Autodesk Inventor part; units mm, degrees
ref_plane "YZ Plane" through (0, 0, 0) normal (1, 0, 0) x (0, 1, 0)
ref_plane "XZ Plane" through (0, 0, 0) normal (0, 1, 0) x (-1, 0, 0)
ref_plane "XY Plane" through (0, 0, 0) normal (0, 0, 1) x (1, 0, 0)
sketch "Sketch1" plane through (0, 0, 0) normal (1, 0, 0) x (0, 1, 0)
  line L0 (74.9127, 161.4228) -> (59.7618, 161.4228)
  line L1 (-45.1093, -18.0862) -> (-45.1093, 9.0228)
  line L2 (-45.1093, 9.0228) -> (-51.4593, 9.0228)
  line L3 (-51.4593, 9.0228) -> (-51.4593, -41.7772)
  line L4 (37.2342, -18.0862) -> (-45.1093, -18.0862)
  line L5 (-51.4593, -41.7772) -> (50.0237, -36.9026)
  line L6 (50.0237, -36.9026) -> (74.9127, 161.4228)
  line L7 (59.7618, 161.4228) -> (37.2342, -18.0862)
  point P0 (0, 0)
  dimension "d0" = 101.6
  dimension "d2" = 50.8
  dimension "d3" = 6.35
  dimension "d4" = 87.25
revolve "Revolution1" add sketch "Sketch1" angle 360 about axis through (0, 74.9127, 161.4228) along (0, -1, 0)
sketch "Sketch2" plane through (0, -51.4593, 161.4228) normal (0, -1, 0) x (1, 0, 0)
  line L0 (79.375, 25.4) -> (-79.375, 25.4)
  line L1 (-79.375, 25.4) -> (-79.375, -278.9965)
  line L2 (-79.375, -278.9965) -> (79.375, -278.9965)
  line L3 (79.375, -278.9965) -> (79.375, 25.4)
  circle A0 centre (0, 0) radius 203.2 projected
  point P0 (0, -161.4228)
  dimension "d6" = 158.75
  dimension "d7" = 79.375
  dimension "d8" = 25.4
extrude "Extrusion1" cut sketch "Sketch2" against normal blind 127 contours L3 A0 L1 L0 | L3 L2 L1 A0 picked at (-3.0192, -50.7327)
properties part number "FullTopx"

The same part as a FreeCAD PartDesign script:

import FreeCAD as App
import Part
import Sketcher
Q = App.Units.Quantity


def add_polygon(sketch, points):
    """Adds a closed chain of lines whose ends are joined by coincident constraints."""
    first, n = sketch.GeometryCount, len(points)
    for a, b in zip(points, points[1:] + points[:1]):
        sketch.addGeometry(Part.LineSegment(App.Vector(*a, 0), App.Vector(*b, 0)), False)
    for i in range(n):
        sketch.addConstraint(Sketcher.Constraint("Coincident", first + i, 2, first + (i + 1) % n, 1))

doc = App.newDocument("Part")
body = doc.addObject("PartDesign::Body", "Body")

# Sketch on YZ plane
sketch1 = doc.addObject("Sketcher::SketchObject", "Sketch")
body.addObject(sketch1)
sketch1.AttachmentSupport = (doc.YZ_Plane, [""])
sketch1.MapMode = "FlatFace"
add_polygon(sketch1, [(50, -37), (75, 161), (60, 161), (37, -18), (-45, -18), (-45, 9), (-51, 9), (-51, -42)])  # lines 0-7
sketch1.addGeometry(Part.LineSegment(App.Vector(75, 161, 0), App.Vector(-51, 161, 0)), True)  # axis
sketch1.addConstraint([
    Sketcher.Constraint("Horizontal", 1),
    Sketcher.Constraint("Horizontal", 3),
    Sketcher.Constraint("Vertical", 4),
    Sketcher.Constraint("Horizontal", 5),
    Sketcher.Constraint("Vertical", 6),
    Sketcher.Constraint("Horizontal", 8),
    Sketcher.Constraint("Coincident", 8, 1, 0, 2),
    Sketcher.Constraint("Parallel", 0, 2),
    Sketcher.Constraint("Vertical", 6, 2, 8, 2),
    Sketcher.Constraint("DistanceY", 6, 2, 6, 1, Q("2 in")),
    Sketcher.Constraint("Distance", 7, Q("4 in")),
    Sketcher.Constraint("DistanceX", 5, 2, 5, 1, Q("0.25 in")),
    Sketcher.Constraint("DistanceY", 4, 2, 1, 2, Q("6 in")),
    Sketcher.Constraint("Angle", 7, Q("2.75 deg")),
    Sketcher.Constraint("DistanceX", 1, 2, 1, 1, Q("0.5965 in")),
    Sketcher.Constraint("DistanceX", 3, 2, 3, 1, 82.3435),
    Sketcher.Constraint("DistanceX", 8, 2, 8, 1, 126.372),
    Sketcher.Constraint("DistanceX", -1, 1, 0, 2, 74.9127),
    Sketcher.Constraint("DistanceY", -1, 1, 0, 2, 161.4228),
])
revolution = doc.addObject("PartDesign::Revolution", "Revolution")
body.addObject(revolution)
revolution.Profile = sketch1
revolution.ReferenceAxis = (sketch1, ["Axis0"])
revolution.Angle = 360

# Sketch on XZ plane
sketch2 = doc.addObject("Sketcher::SketchObject", "Sketch001")
body.addObject(sketch2)
sketch2.AttachmentSupport = (doc.XZ_Plane, [""])
sketch2.MapMode = "FlatFace"
sketch2.AttachmentOffset = App.Placement(App.Vector(0, 0, 51.4593), App.Rotation())
add_polygon(sketch2, [(79, 187), (-79, 187), (-79, -118), (79, -118)])  # lines 0-3
sketch2.addConstraint([
    Sketcher.Constraint("Horizontal", 0),
    Sketcher.Constraint("Vertical", 1),
    Sketcher.Constraint("Horizontal", 2),
    Sketcher.Constraint("Vertical", 3),
    Sketcher.Constraint("DistanceX", 0, 2, 0, 1, Q("6.25 in")),
    Sketcher.Constraint("DistanceX", 0, 2, -1, 1, Q("3.125 in")),
    Sketcher.Constraint("DistanceY", 1, 2, 1, 1, 304.3965),
    Sketcher.Constraint("DistanceY", -1, 1, 0, 2, 186.8228),
])
pocket1 = doc.addObject("PartDesign::Pocket", "Pocket")
body.addObject(pocket1)
pocket1.Profile = sketch2
pocket1.Length = Q("5 in")

doc.recompute()
